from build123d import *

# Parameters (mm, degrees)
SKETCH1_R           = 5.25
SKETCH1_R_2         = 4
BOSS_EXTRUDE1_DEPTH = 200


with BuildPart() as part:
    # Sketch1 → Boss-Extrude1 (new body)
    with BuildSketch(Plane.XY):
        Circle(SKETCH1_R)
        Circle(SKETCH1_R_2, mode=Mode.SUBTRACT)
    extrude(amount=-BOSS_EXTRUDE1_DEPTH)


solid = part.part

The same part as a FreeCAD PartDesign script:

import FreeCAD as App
import Part
import Sketcher
Q = App.Units.Quantity

doc = App.newDocument("Part")
body = doc.addObject("PartDesign::Body", "Body")

# Sketch on XY plane
sketch1 = body.newObject("Sketcher::SketchObject", "Sketch")
sketch1.AttachmentSupport = (doc.getObject("XY_Plane"), [""])
sketch1.MapMode = "FlatFace"
sketch1.addGeometry([
    Part.Circle(App.Vector(0, 0, 0), App.Vector(0, 0, 1), 5.2),
    Part.Circle(App.Vector(0, 0, 0), App.Vector(0, 0, 1), 4),
], False)
sketch1.addConstraint([
    Sketcher.Constraint("Coincident", 0, 3, -1, 1),
    Sketcher.Constraint("Coincident", 1, 3, -1, 1),
    Sketcher.Constraint("Diameter", 1, Q("8 mm")),
    Sketcher.Constraint("Diameter", 0, Q("10.5 mm")),
])
pad1 = body.newObject("PartDesign::Pad", "Pad")
pad1.Profile = sketch1
pad1.Length = 200
pad1.Reversed = True

doc.recompute()
